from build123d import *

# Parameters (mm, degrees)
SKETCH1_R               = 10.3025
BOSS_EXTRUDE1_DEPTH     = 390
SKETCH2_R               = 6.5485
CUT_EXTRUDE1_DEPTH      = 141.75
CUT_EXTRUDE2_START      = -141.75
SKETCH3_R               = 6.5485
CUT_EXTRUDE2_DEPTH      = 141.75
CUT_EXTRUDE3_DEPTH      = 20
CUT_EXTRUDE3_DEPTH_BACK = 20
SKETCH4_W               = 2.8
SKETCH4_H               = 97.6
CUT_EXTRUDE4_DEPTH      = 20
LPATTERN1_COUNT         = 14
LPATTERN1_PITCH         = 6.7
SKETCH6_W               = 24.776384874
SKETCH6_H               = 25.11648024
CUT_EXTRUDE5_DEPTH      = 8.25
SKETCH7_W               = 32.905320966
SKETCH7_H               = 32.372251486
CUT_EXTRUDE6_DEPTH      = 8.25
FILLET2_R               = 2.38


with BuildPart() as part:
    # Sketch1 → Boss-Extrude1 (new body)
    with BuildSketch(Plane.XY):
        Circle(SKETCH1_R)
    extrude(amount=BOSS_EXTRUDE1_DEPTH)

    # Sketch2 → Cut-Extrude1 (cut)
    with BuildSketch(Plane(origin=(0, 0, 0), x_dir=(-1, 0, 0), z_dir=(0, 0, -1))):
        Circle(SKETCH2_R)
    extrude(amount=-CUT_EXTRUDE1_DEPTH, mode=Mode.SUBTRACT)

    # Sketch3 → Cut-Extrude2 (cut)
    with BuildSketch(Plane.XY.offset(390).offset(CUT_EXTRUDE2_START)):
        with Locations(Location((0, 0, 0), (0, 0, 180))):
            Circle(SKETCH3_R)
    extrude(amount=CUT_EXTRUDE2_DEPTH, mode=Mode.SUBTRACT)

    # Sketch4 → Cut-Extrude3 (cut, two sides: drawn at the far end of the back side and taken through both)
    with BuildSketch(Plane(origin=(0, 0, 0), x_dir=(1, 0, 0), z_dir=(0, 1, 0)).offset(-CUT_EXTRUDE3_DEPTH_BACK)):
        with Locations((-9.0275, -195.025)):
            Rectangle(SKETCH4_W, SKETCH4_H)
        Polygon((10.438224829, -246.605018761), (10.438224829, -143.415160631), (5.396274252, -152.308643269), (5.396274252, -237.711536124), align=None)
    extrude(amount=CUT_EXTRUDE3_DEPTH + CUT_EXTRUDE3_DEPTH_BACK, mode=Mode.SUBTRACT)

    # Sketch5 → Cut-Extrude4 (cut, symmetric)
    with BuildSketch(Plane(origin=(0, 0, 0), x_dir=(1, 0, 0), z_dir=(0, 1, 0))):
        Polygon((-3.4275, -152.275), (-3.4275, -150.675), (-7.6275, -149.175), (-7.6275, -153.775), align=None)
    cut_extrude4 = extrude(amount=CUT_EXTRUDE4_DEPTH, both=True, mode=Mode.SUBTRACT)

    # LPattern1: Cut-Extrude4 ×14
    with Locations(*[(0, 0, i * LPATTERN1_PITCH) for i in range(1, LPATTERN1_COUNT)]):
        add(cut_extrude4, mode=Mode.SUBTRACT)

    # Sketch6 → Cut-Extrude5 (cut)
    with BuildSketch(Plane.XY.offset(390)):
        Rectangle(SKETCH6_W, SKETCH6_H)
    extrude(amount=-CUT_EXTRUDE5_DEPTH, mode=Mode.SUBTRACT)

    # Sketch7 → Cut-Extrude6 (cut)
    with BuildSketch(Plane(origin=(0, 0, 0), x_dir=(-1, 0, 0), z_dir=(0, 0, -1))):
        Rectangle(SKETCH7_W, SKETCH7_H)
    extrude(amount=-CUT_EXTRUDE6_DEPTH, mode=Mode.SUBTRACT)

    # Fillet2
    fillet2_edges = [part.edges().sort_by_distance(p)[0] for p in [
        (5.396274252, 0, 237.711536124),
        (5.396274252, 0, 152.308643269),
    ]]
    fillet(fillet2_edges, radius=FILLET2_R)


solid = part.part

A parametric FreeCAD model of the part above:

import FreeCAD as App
import Part
import Sketcher
from FreeCAD import Vector


def edges_at(feature, points):
    """Names of the edges that pass closest to the given points."""
    edges = feature.Shape.Edges
    near = lambda p: min(range(len(edges)), key=lambda i: edges[i].distToShape(Part.Vertex(*p))[0])
    return sorted({f"Edge{near(p) + 1}" for p in points})

doc = App.newDocument("Part")
body = doc.addObject("PartDesign::Body", "Body")

# Sketch on XY plane
sketch1 = doc.addObject("Sketcher::SketchObject", "Sketch")
body.addObject(sketch1)
sketch1.AttachmentSupport = (doc.XY_Plane, [""])
sketch1.MapMode = "FlatFace"
sketch1.addGeometry(Part.Circle(Vector(0, 0, 0), Vector(0, 0, 1), 10), False)
sketch1.addConstraint(Sketcher.Constraint("Coincident", 0, 3, -1, 1))
sketch1.addConstraint(Sketcher.Constraint("Diameter", 0, 20.605))
pad1 = doc.addObject("PartDesign::Pad", "Pad")
body.addObject(pad1)
pad1.Profile = sketch1
pad1.Length = 390

# Sketch on XY plane
sketch2 = doc.addObject("Sketcher::SketchObject", "Sketch001")
body.addObject(sketch2)
sketch2.AttachmentSupport = (doc.XY_Plane, [""])
sketch2.MapMode = "FlatFace"
sketch2.addGeometry(Part.Circle(Vector(0, 0, 0), Vector(0, 0, 1), 7), False)
sketch2.addConstraint(Sketcher.Constraint("Coincident", 0, 3, -1, 1))
sketch2.addConstraint(Sketcher.Constraint("Diameter", 0, 13.097))
pocket1 = doc.addObject("PartDesign::Pocket", "Pocket")
body.addObject(pocket1)
pocket1.Profile = sketch2
pocket1.Length = 141.75
pocket1.Reversed = True

# Sketch on XY plane
sketch3 = doc.addObject("Sketcher::SketchObject", "Sketch002")
body.addObject(sketch3)
sketch3.AttachmentSupport = (doc.XY_Plane, [""])
sketch3.MapMode = "FlatFace"
sketch3.AttachmentOffset = App.Placement(Vector(0, 0, 248.25), App.Rotation())
sketch3.addGeometry(Part.Circle(Vector(0, 0, 0), Vector(0, 0, 1), 7), False)
sketch3.addConstraint(Sketcher.Constraint("Coincident", 0, 3, -1, 1))
sketch3.addConstraint(Sketcher.Constraint("Diameter", 0, 13.097))
pocket2 = doc.addObject("PartDesign::Pocket", "Pocket001")
body.addObject(pocket2)
pocket2.Profile = sketch3
pocket2.Length = 141.75
pocket2.Reversed = True

# Sketch on XZ plane
sketch4 = doc.addObject("Sketcher::SketchObject", "Sketch003")
body.addObject(sketch4)
sketch4.AttachmentSupport = (doc.XZ_Plane, [""])
sketch4.MapMode = "FlatFace"
sketch4.addGeometry(Part.LineSegment(Vector(-10.4, 146.2, 0), Vector(-10.4, 243.8, 0)), False)
sketch4.addGeometry(Part.LineSegment(Vector(-10.4, 243.8, 0), Vector(-7.6, 243.8, 0)), False)
sketch4.addGeometry(Part.LineSegment(Vector(-7.6, 243.8, 0), Vector(-7.6, 146.2, 0)), False)
sketch4.addGeometry(Part.LineSegment(Vector(-7.6, 146.2, 0), Vector(-10.4, 146.2, 0)), False)
sketch4.addGeometry(Part.LineSegment(Vector(10.4, 246.6, 0), Vector(10.4, 143.4, 0)), False)
sketch4.addGeometry(Part.LineSegment(Vector(10.4, 143.4, 0), Vector(5.4, 152.3, 0)), False)
sketch4.addGeometry(Part.LineSegment(Vector(5.4, 152.3, 0), Vector(5.4, 237.7, 0)), False)
sketch4.addGeometry(Part.LineSegment(Vector(5.4, 237.7, 0), Vector(10.4, 246.6, 0)), False)
sketch4.addConstraint(Sketcher.Constraint("Coincident", 0, 2, 1, 1))
sketch4.addConstraint(Sketcher.Constraint("Coincident", 1, 2, 2, 1))
sketch4.addConstraint(Sketcher.Constraint("Coincident", 2, 2, 3, 1))
sketch4.addConstraint(Sketcher.Constraint("Coincident", 3, 2, 0, 1))
sketch4.addConstraint(Sketcher.Constraint("Coincident", 4, 2, 5, 1))
sketch4.addConstraint(Sketcher.Constraint("Coincident", 5, 2, 6, 1))
sketch4.addConstraint(Sketcher.Constraint("Coincident", 6, 2, 7, 1))
sketch4.addConstraint(Sketcher.Constraint("Coincident", 7, 2, 4, 1))
sketch4.addConstraint(Sketcher.Constraint("Vertical", 0))
sketch4.addConstraint(Sketcher.Constraint("Horizontal", 1))
sketch4.addConstraint(Sketcher.Constraint("Vertical", 2))
sketch4.addConstraint(Sketcher.Constraint("Horizontal", 3))
sketch4.addConstraint(Sketcher.Constraint("Vertical", 4))
sketch4.addConstraint(Sketcher.Constraint("Vertical", 6))
sketch4.addConstraint(Sketcher.Constraint("Equal", 5, 7))
sketch4.addConstraint(Sketcher.Constraint("DistanceX", 1, 1, 1, 2, 2.8))
sketch4.addConstraint(Sketcher.Constraint("DistanceY", 0, 1, 0, 2, 97.6))
sketch4.addConstraint(Sketcher.Constraint("DistanceY", -1, 1, 0, 2, 243.825))
sketch4.addConstraint(Sketcher.Constraint("DistanceY", 4, 2, 4, 1, 103.189858))
sketch4.addConstraint(Sketcher.Constraint("DistanceX", 0, 2, -1, 1, 10.4275))
sketch4.addConstraint(Sketcher.Constraint("DistanceY", 6, 1, 6, 2, 85.402893))
sketch4.addConstraint(Sketcher.Constraint("DistanceY", -1, 1, 4, 2, 143.415161))
sketch4.addConstraint(Sketcher.Constraint("DistanceX", 5, 2, 4, 2, 5.041951))
sketch4.addConstraint(Sketcher.Constraint("DistanceX", -1, 1, 4, 2, 10.438225))
pocket3 = doc.addObject("PartDesign::Pocket", "Pocket002")
body.addObject(pocket3)
pocket3.Profile = sketch4
pocket3.Type = "ThroughAll"
pocket3.Midplane = True

# Sketch on XZ plane
sketch5 = doc.addObject("Sketcher::SketchObject", "Sketch004")
body.addObject(sketch5)
sketch5.AttachmentSupport = (doc.XZ_Plane, [""])
sketch5.MapMode = "FlatFace"
sketch5.addGeometry(Part.LineSegment(Vector(-3.4, 152.3, 0), Vector(-3.4, 150.7, 0)), False)
sketch5.addGeometry(Part.LineSegment(Vector(-3.4, 150.7, 0), Vector(-7.6, 149.2, 0)), False)
sketch5.addGeometry(Part.LineSegment(Vector(-7.6, 149.2, 0), Vector(-7.6, 153.8, 0)), False)
sketch5.addGeometry(Part.LineSegment(Vector(-7.6, 153.8, 0), Vector(-3.4, 152.3, 0)), False)
sketch5.addConstraint(Sketcher.Constraint("Coincident", 0, 2, 1, 1))
sketch5.addConstraint(Sketcher.Constraint("Coincident", 1, 2, 2, 1))
sketch5.addConstraint(Sketcher.Constraint("Coincident", 2, 2, 3, 1))
sketch5.addConstraint(Sketcher.Constraint("Coincident", 3, 2, 0, 1))
sketch5.addConstraint(Sketcher.Constraint("Vertical", 0))
sketch5.addConstraint(Sketcher.Constraint("Vertical", 2))
sketch5.addConstraint(Sketcher.Constraint("Equal", 1, 3))
sketch5.addConstraint(Sketcher.Constraint("DistanceY", 0, 2, 0, 1, 1.6))
sketch5.addConstraint(Sketcher.Constraint("DistanceY", 2, 1, 2, 2, 4.6))
sketch5.addConstraint(Sketcher.Constraint("DistanceX", 1, 2, 0, 2, 4.2))
sketch5.addConstraint(Sketcher.Constraint("DistanceY", -1, 1, 0, 2, 150.675))
sketch5.addConstraint(Sketcher.Constraint("DistanceX", 0, 2, -1, 1, 3.4275))
pocket4 = doc.addObject("PartDesign::Pocket", "Pocket003")
body.addObject(pocket4)
pocket4.Profile = sketch5
pocket4.Length = 40
pocket4.Midplane = True
doc.recompute()

linearpattern = doc.addObject("PartDesign::LinearPattern", "LinearPattern")
body.addObject(linearpattern)
linearpattern.Originals = [pocket4]
linearpattern.Direction = (doc.Z_Axis, [""])
linearpattern.Mode = "offset"
linearpattern.Offset = 6.7
linearpattern.Occurrences = 14
body.Tip = linearpattern

# Sketch on XY plane
sketch6 = doc.addObject("Sketcher::SketchObject", "Sketch005")
body.addObject(sketch6)
sketch6.AttachmentSupport = (doc.XY_Plane, [""])
sketch6.MapMode = "FlatFace"
sketch6.AttachmentOffset = App.Placement(Vector(0, 0, 390), App.Rotation())
sketch6.addGeometry(Part.LineSegment(Vector(-12, 13, 0), Vector(-12, -13, 0)), False)
sketch6.addGeometry(Part.LineSegment(Vector(-12, -13, 0), Vector(12, -13, 0)), False)
sketch6.addGeometry(Part.LineSegment(Vector(12, -13, 0), Vector(12, 13, 0)), False)
sketch6.addGeometry(Part.LineSegment(Vector(12, 13, 0), Vector(-12, 13, 0)), False)
sketch6.addConstraint(Sketcher.Constraint("Coincident", 0, 2, 1, 1))
sketch6.addConstraint(Sketcher.Constraint("Coincident", 1, 2, 2, 1))
sketch6.addConstraint(Sketcher.Constraint("Coincident", 2, 2, 3, 1))
sketch6.addConstraint(Sketcher.Constraint("Coincident", 3, 2, 0, 1))
sketch6.addConstraint(Sketcher.Constraint("Vertical", 0))
sketch6.addConstraint(Sketcher.Constraint("Horizontal", 1))
sketch6.addConstraint(Sketcher.Constraint("Vertical", 2))
sketch6.addConstraint(Sketcher.Constraint("Horizontal", 3))
sketch6.addConstraint(Sketcher.Constraint("Symmetric", 0, 2, 2, 2, -1, 1))
sketch6.addConstraint(Sketcher.Constraint("DistanceY", 0, 2, 0, 1, 25.11648))
sketch6.addConstraint(Sketcher.Constraint("DistanceX", 1, 1, 1, 2, 24.776385))
pocket5 = doc.addObject("PartDesign::Pocket", "Pocket004")
body.addObject(pocket5)
pocket5.Profile = sketch6
pocket5.Length = 8.25

# Sketch on XY plane
sketch7 = doc.addObject("Sketcher::SketchObject", "Sketch006")
body.addObject(sketch7)
sketch7.AttachmentSupport = (doc.XY_Plane, [""])
sketch7.MapMode = "FlatFace"
sketch7.addGeometry(Part.LineSegment(Vector(16, 16, 0), Vector(16, -16, 0)), False)
sketch7.addGeometry(Part.LineSegment(Vector(16, -16, 0), Vector(-16, -16, 0)), False)
sketch7.addGeometry(Part.LineSegment(Vector(-16, -16, 0), Vector(-16, 16, 0)), False)
sketch7.addGeometry(Part.LineSegment(Vector(-16, 16, 0), Vector(16, 16, 0)), False)
sketch7.addConstraint(Sketcher.Constraint("Coincident", 0, 2, 1, 1))
sketch7.addConstraint(Sketcher.Constraint("Coincident", 1, 2, 2, 1))
sketch7.addConstraint(Sketcher.Constraint("Coincident", 2, 2, 3, 1))
sketch7.addConstraint(Sketcher.Constraint("Coincident", 3, 2, 0, 1))
sketch7.addConstraint(Sketcher.Constraint("Vertical", 0))
sketch7.addConstraint(Sketcher.Constraint("Horizontal", 1))
sketch7.addConstraint(Sketcher.Constraint("Vertical", 2))
sketch7.addConstraint(Sketcher.Constraint("Horizontal", 3))
sketch7.addConstraint(Sketcher.Constraint("Symmetric", 0, 2, 2, 2, -1, 1))
sketch7.addConstraint(Sketcher.Constraint("DistanceX", 1, 2, 1, 1, 32.905321))
sketch7.addConstraint(Sketcher.Constraint("DistanceY", 0, 2, 0, 1, 32.372251))
pocket6 = doc.addObject("PartDesign::Pocket", "Pocket005")
body.addObject(pocket6)
pocket6.Profile = sketch7
pocket6.Length = 8.25
pocket6.Reversed = True
doc.recompute()

fillet = doc.addObject("PartDesign::Fillet", "Fillet")
body.addObject(fillet)
fillet.Base = (pocket6, edges_at(pocket6, [(5.396, 0, 237.712), (5.396, 0, 152.309)]))
fillet.Radius = 2.38

doc.recompute()
